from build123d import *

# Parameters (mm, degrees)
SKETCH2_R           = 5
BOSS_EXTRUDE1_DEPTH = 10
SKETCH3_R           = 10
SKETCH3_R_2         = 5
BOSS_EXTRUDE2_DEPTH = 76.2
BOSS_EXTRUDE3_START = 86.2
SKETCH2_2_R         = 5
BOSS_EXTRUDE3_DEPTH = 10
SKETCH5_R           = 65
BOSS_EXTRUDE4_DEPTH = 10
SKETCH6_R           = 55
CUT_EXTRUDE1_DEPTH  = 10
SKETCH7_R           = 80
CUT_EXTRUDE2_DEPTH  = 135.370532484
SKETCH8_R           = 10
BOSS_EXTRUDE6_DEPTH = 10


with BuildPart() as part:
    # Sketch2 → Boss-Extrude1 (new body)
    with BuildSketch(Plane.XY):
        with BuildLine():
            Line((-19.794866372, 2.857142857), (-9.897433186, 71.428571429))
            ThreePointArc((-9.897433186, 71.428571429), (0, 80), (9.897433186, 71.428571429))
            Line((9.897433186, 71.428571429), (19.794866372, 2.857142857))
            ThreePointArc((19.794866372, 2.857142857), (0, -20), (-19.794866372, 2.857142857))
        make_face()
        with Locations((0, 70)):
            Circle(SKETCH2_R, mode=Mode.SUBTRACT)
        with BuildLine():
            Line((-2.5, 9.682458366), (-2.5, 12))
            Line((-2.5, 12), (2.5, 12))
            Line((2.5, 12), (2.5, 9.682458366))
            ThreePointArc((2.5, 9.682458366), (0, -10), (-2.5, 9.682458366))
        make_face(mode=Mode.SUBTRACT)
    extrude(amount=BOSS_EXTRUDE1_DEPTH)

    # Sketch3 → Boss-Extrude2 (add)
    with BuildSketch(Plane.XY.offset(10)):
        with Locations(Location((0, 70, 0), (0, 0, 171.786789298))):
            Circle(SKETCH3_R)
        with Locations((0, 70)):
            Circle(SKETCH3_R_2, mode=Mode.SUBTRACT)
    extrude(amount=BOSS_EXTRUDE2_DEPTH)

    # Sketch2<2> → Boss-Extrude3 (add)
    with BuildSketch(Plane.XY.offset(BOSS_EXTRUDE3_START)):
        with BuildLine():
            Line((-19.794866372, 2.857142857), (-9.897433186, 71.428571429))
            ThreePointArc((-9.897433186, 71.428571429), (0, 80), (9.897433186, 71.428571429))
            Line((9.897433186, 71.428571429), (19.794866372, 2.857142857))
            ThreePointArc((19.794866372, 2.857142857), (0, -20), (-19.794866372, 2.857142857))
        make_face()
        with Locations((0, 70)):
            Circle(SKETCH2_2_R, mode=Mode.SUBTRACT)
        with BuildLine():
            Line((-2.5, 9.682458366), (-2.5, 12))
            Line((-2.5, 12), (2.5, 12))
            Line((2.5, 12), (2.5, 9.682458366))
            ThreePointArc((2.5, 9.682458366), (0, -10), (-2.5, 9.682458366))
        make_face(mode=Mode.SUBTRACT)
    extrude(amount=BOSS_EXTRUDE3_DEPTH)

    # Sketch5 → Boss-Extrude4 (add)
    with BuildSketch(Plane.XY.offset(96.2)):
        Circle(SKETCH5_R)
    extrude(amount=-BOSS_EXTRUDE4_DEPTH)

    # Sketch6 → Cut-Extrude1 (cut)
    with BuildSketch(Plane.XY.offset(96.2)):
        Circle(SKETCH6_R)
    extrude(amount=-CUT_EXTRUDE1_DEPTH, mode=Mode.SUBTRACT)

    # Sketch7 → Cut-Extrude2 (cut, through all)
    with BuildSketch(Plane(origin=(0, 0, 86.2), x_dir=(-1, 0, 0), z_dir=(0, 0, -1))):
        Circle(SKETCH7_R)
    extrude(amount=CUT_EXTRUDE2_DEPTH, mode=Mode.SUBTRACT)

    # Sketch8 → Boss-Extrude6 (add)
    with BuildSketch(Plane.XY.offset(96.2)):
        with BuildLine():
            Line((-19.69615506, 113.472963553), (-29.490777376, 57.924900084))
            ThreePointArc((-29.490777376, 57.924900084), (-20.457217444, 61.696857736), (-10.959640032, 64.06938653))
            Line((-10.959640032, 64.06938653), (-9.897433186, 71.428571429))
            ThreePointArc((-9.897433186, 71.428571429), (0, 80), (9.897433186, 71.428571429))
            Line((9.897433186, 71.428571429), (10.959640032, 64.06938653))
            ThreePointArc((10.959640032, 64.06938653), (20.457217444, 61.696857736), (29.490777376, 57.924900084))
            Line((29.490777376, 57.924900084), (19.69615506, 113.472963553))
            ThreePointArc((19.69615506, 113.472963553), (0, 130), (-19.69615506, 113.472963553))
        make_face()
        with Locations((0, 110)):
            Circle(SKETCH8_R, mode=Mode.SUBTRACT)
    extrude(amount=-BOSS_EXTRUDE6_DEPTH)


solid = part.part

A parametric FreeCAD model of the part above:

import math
import FreeCAD as App
import Part
import Sketcher
Q = App.Units.Quantity

doc = App.newDocument("Part")
params = doc.addObject("Spreadsheet::Sheet", "Params")
for row, (alias, value) in enumerate([
    ("sketch1_diameter", "10 mm"),
    ("sketch1_radius", "20 mm"),
    ("sketch1_radius2", "10 mm"),
    ("sketch1_width", "5 mm"),
    ("pad1_length", "10 mm"),
    ("sketch2_diameter", "20 mm"),
    ("sketch2_diameter2", "10 mm"),
    ("pad2_length", "76.2 mm"),
    ("sketch3_diameter", "10 mm"),
    ("sketch3_radius", "20 mm"),
    ("sketch3_radius2", "10 mm"),
    ("sketch3_width", "5 mm"),
    ("pad3_length", "10 mm"),
    ("sketch4_diameter", "130 mm"),
    ("pad4_length", "10 mm"),
    ("sketch5_diameter", "110 mm"),
    ("pocket1_length", "10 mm"),
    ("sketch6_diameter", "160 mm"),
    ("sketch7_diameter", "20 mm"),
    ("sketch7_radius", "65 mm"),
    ("sketch7_radius2", "20 mm"),
    ("pad5_length", "10 mm"),
], start=1):
    params.set(f"A{row}", alias)
    params.set(f"B{row}", "=" + value)
    params.setAlias(f"B{row}", alias)

body = doc.addObject("PartDesign::Body", "Body")

# Sketch on XY plane
sketch1 = body.newObject("Sketcher::SketchObject", "Sketch")
sketch1.AttachmentSupport = (doc.getObject("XY_Plane"), [""])
sketch1.MapMode = "FlatFace"
sketch1.addGeometry([
    Part.LineSegment(App.Vector(-9.9, 71.4, 0), App.Vector(-19.8, 2.9, 0)),  # 0
    Part.ArcOfCircle(Part.Circle(App.Vector(0, 0, 0), App.Vector(0, 0, 1), 20), math.radians(172), math.radians(368)),  # 1
    Part.LineSegment(App.Vector(19.8, 2.9, 0), App.Vector(9.9, 71.4, 0)),  # 2
    Part.ArcOfCircle(Part.Circle(App.Vector(0, 70, 0), App.Vector(0, 0, 1), 10), math.radians(8), math.radians(172)),  # 3
    Part.LineSegment(App.Vector(-2.5, 9.7, 0), App.Vector(-2.5, 12, 0)),  # 4
    Part.LineSegment(App.Vector(-2.5, 12, 0), App.Vector(2.5, 12, 0)),  # 5
    Part.LineSegment(App.Vector(2.5, 12, 0), App.Vector(2.5, 9.7, 0)),  # 6
    Part.ArcOfCircle(Part.Circle(App.Vector(0, 0, 0), App.Vector(0, 0, 1), 10), math.radians(104), math.radians(436)),  # 7
    Part.Circle(App.Vector(0, 70, 0), App.Vector(0, 0, 1), 5),  # 8
], False)
sketch1.addConstraint([
    Sketcher.Constraint("Tangent", 0, 2, 1, 1),
    Sketcher.Constraint("Tangent", 1, 2, 2, 1),
    Sketcher.Constraint("Tangent", 2, 2, 3, 1),
    Sketcher.Constraint("Tangent", 3, 2, 0, 1),
    Sketcher.Constraint("Coincident", 4, 2, 5, 1),
    Sketcher.Constraint("Coincident", 5, 2, 6, 1),
    Sketcher.Constraint("Coincident", 6, 2, 7, 2),
    Sketcher.Constraint("Coincident", 7, 1, 4, 1),
    Sketcher.Constraint("Vertical", 4),
    Sketcher.Constraint("Horizontal", 5),
    Sketcher.Constraint("Vertical", 6),
    Sketcher.Constraint("Coincident", 1, 3, -1, 1),
    Sketcher.Constraint("Coincident", 7, 3, -1, 1),
    Sketcher.Constraint("Coincident", 8, 3, 3, 3),
    Sketcher.Constraint("Equal", 3, 7),
    Sketcher.Constraint("PointOnObject", 3, 3, -2),
    Sketcher.Constraint("Horizontal", 6, 2, 7, 1),
    Sketcher.Constraint("Diameter", 8, 10.0),
    Sketcher.Constraint("Radius", 1, 20.0),
    Sketcher.Constraint("Radius", 3, 10.0),
    Sketcher.Constraint("DistanceX", 5, 1, 5, 2, 5.0),
    Sketcher.Constraint("DistanceY", -1, 1, 3, 3, 70.0),
    Sketcher.Constraint("DistanceY", -1, 1, 4, 2, 12.0),
])
sketch1.setExpression("Constraints[17]", "Params.sketch1_diameter")
sketch1.setExpression("Constraints[18]", "Params.sketch1_radius")
sketch1.setExpression("Constraints[19]", "Params.sketch1_radius2")
sketch1.setExpression("Constraints[20]", "Params.sketch1_width")
pad1 = body.newObject("PartDesign::Pad", "Pad")
pad1.Profile = sketch1
pad1.setExpression("Length", "Params.pad1_length")

# Sketch on XY plane
sketch2 = body.newObject("Sketcher::SketchObject", "Sketch001")
sketch2.AttachmentSupport = (doc.getObject("XY_Plane"), [""])
sketch2.MapMode = "FlatFace"
sketch2.AttachmentOffset = App.Placement(App.Vector(0, 0, 10), App.Rotation())
sketch2.addGeometry([
    Part.Circle(App.Vector(0, 70, 0), App.Vector(0, 0, 1), 10),
    Part.Circle(App.Vector(0, 70, 0), App.Vector(0, 0, 1), 5),
], False)
sketch2.addConstraint([
    Sketcher.Constraint("Coincident", 1, 3, 0, 3),
    Sketcher.Constraint("PointOnObject", 0, 3, -2),
    Sketcher.Constraint("Diameter", 0, 20.0),
    Sketcher.Constraint("Diameter", 1, 10.0),
    Sketcher.Constraint("DistanceY", -1, 1, 0, 3, 70.0),
])
sketch2.setExpression("Constraints[2]", "Params.sketch2_diameter")
sketch2.setExpression("Constraints[3]", "Params.sketch2_diameter2")
pad2 = body.newObject("PartDesign::Pad", "Pad001")
pad2.Profile = sketch2
pad2.setExpression("Length", "Params.pad2_length")

# Sketch on XY plane
sketch3 = body.newObject("Sketcher::SketchObject", "Sketch002")
sketch3.AttachmentSupport = (doc.getObject("XY_Plane"), [""])
sketch3.MapMode = "FlatFace"
sketch3.AttachmentOffset = App.Placement(App.Vector(0, 0, 86.2), App.Rotation())
sketch3.addGeometry([
    Part.LineSegment(App.Vector(-9.9, 71.4, 0), App.Vector(-19.8, 2.9, 0)),  # 0
    Part.ArcOfCircle(Part.Circle(App.Vector(0, 0, 0), App.Vector(0, 0, 1), 20), math.radians(172), math.radians(368)),  # 1
    Part.LineSegment(App.Vector(19.8, 2.9, 0), App.Vector(9.9, 71.4, 0)),  # 2
    Part.ArcOfCircle(Part.Circle(App.Vector(0, 70, 0), App.Vector(0, 0, 1), 10), math.radians(8), math.radians(172)),  # 3
    Part.LineSegment(App.Vector(-2.5, 9.7, 0), App.Vector(-2.5, 12, 0)),  # 4
    Part.LineSegment(App.Vector(-2.5, 12, 0), App.Vector(2.5, 12, 0)),  # 5
    Part.LineSegment(App.Vector(2.5, 12, 0), App.Vector(2.5, 9.7, 0)),  # 6
    Part.ArcOfCircle(Part.Circle(App.Vector(0, 0, 0), App.Vector(0, 0, 1), 10), math.radians(104), math.radians(436)),  # 7
    Part.Circle(App.Vector(0, 70, 0), App.Vector(0, 0, 1), 5),  # 8
], False)
sketch3.addConstraint([
    Sketcher.Constraint("Tangent", 0, 2, 1, 1),
    Sketcher.Constraint("Tangent", 1, 2, 2, 1),
    Sketcher.Constraint("Tangent", 2, 2, 3, 1),
    Sketcher.Constraint("Tangent", 3, 2, 0, 1),
    Sketcher.Constraint("Coincident", 4, 2, 5, 1),
    Sketcher.Constraint("Coincident", 5, 2, 6, 1),
    Sketcher.Constraint("Coincident", 6, 2, 7, 2),
    Sketcher.Constraint("Coincident", 7, 1, 4, 1),
    Sketcher.Constraint("Vertical", 4),
    Sketcher.Constraint("Horizontal", 5),
    Sketcher.Constraint("Vertical", 6),
    Sketcher.Constraint("Coincident", 1, 3, -1, 1),
    Sketcher.Constraint("Coincident", 7, 3, -1, 1),
    Sketcher.Constraint("Coincident", 8, 3, 3, 3),
    Sketcher.Constraint("Equal", 3, 7),
    Sketcher.Constraint("PointOnObject", 3, 3, -2),
    Sketcher.Constraint("Horizontal", 6, 2, 7, 1),
    Sketcher.Constraint("Diameter", 8, 10.0),
    Sketcher.Constraint("Radius", 1, 20.0),
    Sketcher.Constraint("Radius", 3, 10.0),
    Sketcher.Constraint("DistanceX", 5, 1, 5, 2, 5.0),
    Sketcher.Constraint("DistanceY", -1, 1, 3, 3, 70.0),
    Sketcher.Constraint("DistanceY", -1, 1, 4, 2, 12.0),
])
sketch3.setExpression("Constraints[17]", "Params.sketch3_diameter")
sketch3.setExpression("Constraints[18]", "Params.sketch3_radius")
sketch3.setExpression("Constraints[19]", "Params.sketch3_radius2")
sketch3.setExpression("Constraints[20]", "Params.sketch3_width")
pad3 = body.newObject("PartDesign::Pad", "Pad002")
pad3.Profile = sketch3
pad3.setExpression("Length", "Params.pad3_length")

# Sketch on XY plane
sketch4 = body.newObject("Sketcher::SketchObject", "Sketch003")
sketch4.AttachmentSupport = (doc.getObject("XY_Plane"), [""])
sketch4.MapMode = "FlatFace"
sketch4.AttachmentOffset = App.Placement(App.Vector(0, 0, 96.2), App.Rotation())
sketch4.addGeometry(Part.Circle(App.Vector(0, 0, 0), App.Vector(0, 0, 1), 65), False)
sketch4.addConstraint([
    Sketcher.Constraint("Coincident", 0, 3, -1, 1),
    Sketcher.Constraint("Diameter", 0, 130.0),
])
sketch4.setExpression("Constraints[1]", "Params.sketch4_diameter")
pad4 = body.newObject("PartDesign::Pad", "Pad003")
pad4.Profile = sketch4
pad4.setExpression("Length", "Params.pad4_length")
pad4.Reversed = True

# Sketch on XY plane
sketch5 = body.newObject("Sketcher::SketchObject", "Sketch004")
sketch5.AttachmentSupport = (doc.getObject("XY_Plane"), [""])
sketch5.MapMode = "FlatFace"
sketch5.AttachmentOffset = App.Placement(App.Vector(0, 0, 96.2), App.Rotation())
sketch5.addGeometry(Part.Circle(App.Vector(0, 0, 0), App.Vector(0, 0, 1), 55), False)
sketch5.addConstraint([
    Sketcher.Constraint("Coincident", 0, 3, -1, 1),
    Sketcher.Constraint("Diameter", 0, 110.0),
])
sketch5.setExpression("Constraints[1]", "Params.sketch5_diameter")
pocket1 = body.newObject("PartDesign::Pocket", "Pocket")
pocket1.Profile = sketch5
pocket1.setExpression("Length", "Params.pocket1_length")

# Sketch on XY plane
sketch6 = body.newObject("Sketcher::SketchObject", "Sketch005")
sketch6.AttachmentSupport = (doc.getObject("XY_Plane"), [""])
sketch6.MapMode = "FlatFace"
sketch6.AttachmentOffset = App.Placement(App.Vector(0, 0, 86.2), App.Rotation())
sketch6.addGeometry(Part.Circle(App.Vector(0, 0, 0), App.Vector(0, 0, 1), 80), False)
sketch6.addConstraint([
    Sketcher.Constraint("Coincident", 0, 3, -1, 1),
    Sketcher.Constraint("Diameter", 0, 160.0),
])
sketch6.setExpression("Constraints[1]", "Params.sketch6_diameter")
pocket2 = body.newObject("PartDesign::Pocket", "Pocket001")
pocket2.Profile = sketch6
pocket2.Type = "ThroughAll"

# Sketch on XY plane
sketch7 = body.newObject("Sketcher::SketchObject", "Sketch006")
sketch7.AttachmentSupport = (doc.getObject("XY_Plane"), [""])
sketch7.MapMode = "FlatFace"
sketch7.AttachmentOffset = App.Placement(App.Vector(0, 0, 96.2), App.Rotation())
sketch7.addGeometry([
    Part.LineSegment(App.Vector(-20, 113, 0), App.Vector(-29, 58, 0)),  # 0
    Part.ArcOfCircle(Part.Circle(App.Vector(0, 0, 0), App.Vector(0, 0, 1), 65), math.radians(99.71), math.radians(116.98)),  # 1
    Part.LineSegment(App.Vector(-11, 64, 0), App.Vector(-10, 71, 0)),  # 2
    Part.ArcOfCircle(Part.Circle(App.Vector(0, 70, 0), App.Vector(0, 0, 1), 10), math.radians(8), math.radians(172)),  # 3
    Part.LineSegment(App.Vector(10, 71, 0), App.Vector(11, 64, 0)),  # 4
    Part.ArcOfCircle(Part.Circle(App.Vector(0, 0, 0), App.Vector(0, 0, 1), 65), math.radians(63.02), math.radians(80.29)),  # 5
    Part.LineSegment(App.Vector(29, 58, 0), App.Vector(20, 113, 0)),  # 6
    Part.ArcOfCircle(Part.Circle(App.Vector(0, 110, 0), App.Vector(0, 0, 1), 20), math.radians(10), math.radians(170)),  # 7
    Part.Circle(App.Vector(0, 110, 0), App.Vector(0, 0, 1), 10),  # 8
], False)
sketch7.addConstraint([
    Sketcher.Constraint("Coincident", 0, 2, 1, 2),
    Sketcher.Constraint("Coincident", 1, 1, 2, 1),
    Sketcher.Constraint("Tangent", 2, 2, 3, 2),
    Sketcher.Constraint("Tangent", 3, 1, 4, 1),
    Sketcher.Constraint("Coincident", 4, 2, 5, 2),
    Sketcher.Constraint("Coincident", 5, 1, 6, 1),
    Sketcher.Constraint("Tangent", 6, 2, 7, 1),
    Sketcher.Constraint("Tangent", 7, 2, 0, 1),
    Sketcher.Constraint("Coincident", 1, 3, -1, 1),
    Sketcher.Constraint("Coincident", 5, 3, -1, 1),
    Sketcher.Constraint("Coincident", 8, 3, 7, 3),
    Sketcher.Constraint("Equal", 1, 5),
    Sketcher.Constraint("Equal", 3, 8),
    Sketcher.Constraint("Symmetric", 2, 2, 3, 1, -2),
    Sketcher.Constraint("Symmetric", 6, 2, 7, 2, -2),
    Sketcher.Constraint("Diameter", 8, 20.0),
    Sketcher.Constraint("Radius", 1, 65.0),
    Sketcher.Constraint("Radius", 7, 20.0),
    Sketcher.Constraint("Angle", 0, Q("-100 deg")),
    Sketcher.Constraint("DistanceY", -1, 1, 3, 3, 70.0),
    Sketcher.Constraint("DistanceY", -1, 1, 7, 3, 110.0),
    Sketcher.Constraint("DistanceX", 1, 1, -1, 1, 10.95964),
])
sketch7.setExpression("Constraints[15]", "Params.sketch7_diameter")
sketch7.setExpression("Constraints[16]", "Params.sketch7_radius")
sketch7.setExpression("Constraints[17]", "Params.sketch7_radius2")
pad5 = body.newObject("PartDesign::Pad", "Pad004")
pad5.Profile = sketch7
pad5.setExpression("Length", "Params.pad5_length")
pad5.Reversed = True

doc.recompute()
